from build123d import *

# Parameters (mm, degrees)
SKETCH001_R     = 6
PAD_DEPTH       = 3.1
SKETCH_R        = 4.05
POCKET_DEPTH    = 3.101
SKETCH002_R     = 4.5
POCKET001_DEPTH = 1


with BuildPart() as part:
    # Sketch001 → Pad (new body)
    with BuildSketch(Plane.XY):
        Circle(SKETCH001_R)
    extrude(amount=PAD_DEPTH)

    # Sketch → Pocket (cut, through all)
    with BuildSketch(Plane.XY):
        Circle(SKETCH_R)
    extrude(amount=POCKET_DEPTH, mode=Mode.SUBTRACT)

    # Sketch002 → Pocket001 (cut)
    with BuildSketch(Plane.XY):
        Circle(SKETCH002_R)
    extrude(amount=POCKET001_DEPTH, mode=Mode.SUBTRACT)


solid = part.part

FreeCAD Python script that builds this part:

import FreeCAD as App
import Part
import Sketcher
from FreeCAD import Vector

doc = App.newDocument("Part")
body = doc.addObject("PartDesign::Body", "Body")

sketch1 = body.newObject("Sketcher::SketchObject", "Sketch")
sketch1.AttachmentSupport = (doc.getObject("XY_Plane"), [""])
sketch1.MapMode = "FlatFace"
sketch1.addGeometry(Part.Circle(Vector(0, 0, 0), Vector(0, 0, 1), 6), False)
sketch1.addConstraint(Sketcher.Constraint("Coincident", 0, 3, -1, 1))
sketch1.addConstraint(Sketcher.Constraint("Diameter", 0, 12.0))
pad1 = body.newObject("PartDesign::Pad", "Pad")
pad1.Profile = sketch1
pad1.Length = 3.1

sketch2 = body.newObject("Sketcher::SketchObject", "Sketch001")
sketch2.AttachmentSupport = (doc.getObject("XY_Plane"), [""])
sketch2.MapMode = "FlatFace"
sketch2.addGeometry(Part.Circle(Vector(0, 0, 0), Vector(0, 0, 1), 4), False)
sketch2.addConstraint(Sketcher.Constraint("Coincident", 0, 3, -1, 1))
sketch2.addConstraint(Sketcher.Constraint("Diameter", 0, 8.1))
pocket1 = body.newObject("PartDesign::Pocket", "Pocket")
pocket1.Profile = sketch2
pocket1.Type = "ThroughAll"
pocket1.Reversed = True

sketch3 = body.newObject("Sketcher::SketchObject", "Sketch002")
sketch3.AttachmentSupport = (doc.getObject("XY_Plane"), [""])
sketch3.MapMode = "FlatFace"
sketch3.addGeometry(Part.Circle(Vector(0, 0, 0), Vector(0, 0, 1), 4.5), False)
sketch3.addConstraint(Sketcher.Constraint("Coincident", 0, 3, -1, 1))
sketch3.addConstraint(Sketcher.Constraint("Diameter", 0, 9.0))
pocket2 = body.newObject("PartDesign::Pocket", "Pocket001")
pocket2.Profile = sketch3
pocket2.Length = 1
pocket2.Reversed = True

doc.recompute()
